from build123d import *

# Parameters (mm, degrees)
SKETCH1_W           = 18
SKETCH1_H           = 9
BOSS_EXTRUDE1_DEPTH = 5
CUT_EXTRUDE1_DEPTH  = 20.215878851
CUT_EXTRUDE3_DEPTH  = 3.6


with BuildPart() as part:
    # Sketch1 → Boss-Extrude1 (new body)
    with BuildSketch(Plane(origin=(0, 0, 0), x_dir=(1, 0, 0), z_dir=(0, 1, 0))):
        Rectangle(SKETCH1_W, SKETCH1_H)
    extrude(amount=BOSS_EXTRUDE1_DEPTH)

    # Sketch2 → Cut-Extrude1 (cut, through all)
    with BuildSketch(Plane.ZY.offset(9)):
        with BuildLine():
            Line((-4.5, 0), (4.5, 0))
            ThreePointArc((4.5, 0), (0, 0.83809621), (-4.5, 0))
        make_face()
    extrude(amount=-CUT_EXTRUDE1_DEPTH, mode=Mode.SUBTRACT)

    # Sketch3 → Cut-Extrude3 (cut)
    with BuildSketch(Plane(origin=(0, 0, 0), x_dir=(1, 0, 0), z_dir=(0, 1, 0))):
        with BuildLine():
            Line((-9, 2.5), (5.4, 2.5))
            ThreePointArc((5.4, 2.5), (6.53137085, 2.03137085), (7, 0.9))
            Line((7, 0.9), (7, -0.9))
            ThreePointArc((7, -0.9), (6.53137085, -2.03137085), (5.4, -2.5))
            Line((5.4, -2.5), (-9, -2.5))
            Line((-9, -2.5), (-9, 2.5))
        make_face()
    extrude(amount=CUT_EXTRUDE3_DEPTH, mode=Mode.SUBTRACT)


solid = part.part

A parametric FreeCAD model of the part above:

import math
import FreeCAD as App
import Part
import Sketcher
from FreeCAD import Vector
Q = App.Units.Quantity

doc = App.newDocument("Part")
body = doc.addObject("PartDesign::Body", "Body")

sketch1 = body.newObject("Sketcher::SketchObject", "Sketch")
sketch1.AttachmentSupport = (doc.getObject("XZ_Plane"), [""])
sketch1.MapMode = "FlatFace"
sketch1.addGeometry(Part.LineSegment(Vector(-9, -4, 0), Vector(-9, 4, 0)), False)
sketch1.addGeometry(Part.LineSegment(Vector(-9, 4, 0), Vector(9, 4, 0)), False)
sketch1.addGeometry(Part.LineSegment(Vector(9, 4, 0), Vector(9, -4, 0)), False)
sketch1.addGeometry(Part.LineSegment(Vector(9, -4, 0), Vector(-9, -4, 0)), False)
sketch1.addConstraint(Sketcher.Constraint("Coincident", 0, 2, 1, 1))
sketch1.addConstraint(Sketcher.Constraint("Coincident", 1, 2, 2, 1))
sketch1.addConstraint(Sketcher.Constraint("Coincident", 2, 2, 3, 1))
sketch1.addConstraint(Sketcher.Constraint("Coincident", 3, 2, 0, 1))
sketch1.addConstraint(Sketcher.Constraint("Vertical", 0))
sketch1.addConstraint(Sketcher.Constraint("Horizontal", 1))
sketch1.addConstraint(Sketcher.Constraint("Vertical", 2))
sketch1.addConstraint(Sketcher.Constraint("Horizontal", 3))
sketch1.addConstraint(Sketcher.Constraint("Symmetric", 0, 2, 2, 2, -1, 1))
sketch1.addConstraint(Sketcher.Constraint("DistanceX", 1, 1, 1, 2, Q("18 mm")))
sketch1.addConstraint(Sketcher.Constraint("DistanceY", 0, 1, 0, 2, Q("9 mm")))
pad1 = body.newObject("PartDesign::Pad", "Pad")
pad1.Profile = sketch1
pad1.Length = 5
pad1.Reversed = True

sketch2 = body.newObject("Sketcher::SketchObject", "Sketch001")
sketch2.AttachmentSupport = (doc.getObject("YZ_Plane"), [""])
sketch2.MapMode = "FlatFace"
sketch2.AttachmentOffset = App.Placement(Vector(0, 0, -9), App.Rotation())
sketch2.addGeometry(Part.LineSegment(Vector(0, -4, 0), Vector(0, 4, 0)), False)
sketch2.addGeometry(Part.ArcOfCircle(Part.Circle(Vector(-12, 0, 0), Vector(0, 0, 1), 13), math.radians(-21), math.radians(21)), False)
sketch2.addConstraint(Sketcher.Constraint("Coincident", 0, 1, 1, 1))
sketch2.addConstraint(Sketcher.Constraint("Coincident", 1, 2, 0, 2))
sketch2.addConstraint(Sketcher.Constraint("Vertical", 0))
sketch2.addConstraint(Sketcher.Constraint("Symmetric", 0, 1, 1, 2, -1, 1))
sketch2.addConstraint(Sketcher.Constraint("Radius", 1, Q("12.5 mm")))
sketch2.addConstraint(Sketcher.Constraint("DistanceY", 0, 1, 0, 2, Q("9 mm")))
pocket1 = body.newObject("PartDesign::Pocket", "Pocket")
pocket1.Profile = sketch2
pocket1.Type = "ThroughAll"
pocket1.Reversed = True

sketch3 = body.newObject("Sketcher::SketchObject", "Sketch002")
sketch3.AttachmentSupport = (doc.getObject("XZ_Plane"), [""])
sketch3.MapMode = "FlatFace"
sketch3.addGeometry(Part.LineSegment(Vector(5.4, -2.5, 0), Vector(-9, -2.5, 0)), False)
sketch3.addGeometry(Part.LineSegment(Vector(-9, -2.5, 0), Vector(-9, 2.5, 0)), False)
sketch3.addGeometry(Part.LineSegment(Vector(-9, 2.5, 0), Vector(5.4, 2.5, 0)), False)
sketch3.addGeometry(Part.ArcOfCircle(Part.Circle(Vector(5.4, 0.9, 0), Vector(0, 0, 1), 1.6), math.radians(0), math.radians(90)), False)
sketch3.addGeometry(Part.LineSegment(Vector(7, 0.9, 0), Vector(7, -0.9, 0)), False)
sketch3.addGeometry(Part.ArcOfCircle(Part.Circle(Vector(5.4, -0.9, 0), Vector(0, 0, 1), 1.6), math.radians(-90), math.radians(0)), False)
sketch3.addConstraint(Sketcher.Constraint("Coincident", 0, 2, 1, 1))
sketch3.addConstraint(Sketcher.Constraint("Coincident", 1, 2, 2, 1))
sketch3.addConstraint(Sketcher.Constraint("Tangent", 2, 2, 3, 2))
sketch3.addConstraint(Sketcher.Constraint("Tangent", 3, 1, 4, 1))
sketch3.addConstraint(Sketcher.Constraint("Tangent", 4, 2, 5, 2))
sketch3.addConstraint(Sketcher.Constraint("Tangent", 5, 1, 0, 1))
sketch3.addConstraint(Sketcher.Constraint("Horizontal", 0))
sketch3.addConstraint(Sketcher.Constraint("Vertical", 1))
sketch3.addConstraint(Sketcher.Constraint("Horizontal", 2))
sketch3.addConstraint(Sketcher.Constraint("Vertical", 4))
sketch3.addConstraint(Sketcher.Constraint("Equal", 3, 5))
sketch3.addConstraint(Sketcher.Constraint("Radius", 3, Q("1.6 mm")))
sketch3.addConstraint(Sketcher.Constraint("DistanceY", 1, 1, 1, 2, Q("5 mm")))
sketch3.addConstraint(Sketcher.Constraint("DistanceX", 0, 2, 0, 1, Q("14.4 mm")))
sketch3.addConstraint(Sketcher.Constraint("DistanceX", 0, 2, -1, 1, Q("9 mm")))
sketch3.addConstraint(Sketcher.Constraint("DistanceY", -1, 1, 3, 3, Q("0.9 mm")))
pocket2 = body.newObject("PartDesign::Pocket", "Pocket001")
pocket2.Profile = sketch3
pocket2.Length = 3.6

doc.recompute()
